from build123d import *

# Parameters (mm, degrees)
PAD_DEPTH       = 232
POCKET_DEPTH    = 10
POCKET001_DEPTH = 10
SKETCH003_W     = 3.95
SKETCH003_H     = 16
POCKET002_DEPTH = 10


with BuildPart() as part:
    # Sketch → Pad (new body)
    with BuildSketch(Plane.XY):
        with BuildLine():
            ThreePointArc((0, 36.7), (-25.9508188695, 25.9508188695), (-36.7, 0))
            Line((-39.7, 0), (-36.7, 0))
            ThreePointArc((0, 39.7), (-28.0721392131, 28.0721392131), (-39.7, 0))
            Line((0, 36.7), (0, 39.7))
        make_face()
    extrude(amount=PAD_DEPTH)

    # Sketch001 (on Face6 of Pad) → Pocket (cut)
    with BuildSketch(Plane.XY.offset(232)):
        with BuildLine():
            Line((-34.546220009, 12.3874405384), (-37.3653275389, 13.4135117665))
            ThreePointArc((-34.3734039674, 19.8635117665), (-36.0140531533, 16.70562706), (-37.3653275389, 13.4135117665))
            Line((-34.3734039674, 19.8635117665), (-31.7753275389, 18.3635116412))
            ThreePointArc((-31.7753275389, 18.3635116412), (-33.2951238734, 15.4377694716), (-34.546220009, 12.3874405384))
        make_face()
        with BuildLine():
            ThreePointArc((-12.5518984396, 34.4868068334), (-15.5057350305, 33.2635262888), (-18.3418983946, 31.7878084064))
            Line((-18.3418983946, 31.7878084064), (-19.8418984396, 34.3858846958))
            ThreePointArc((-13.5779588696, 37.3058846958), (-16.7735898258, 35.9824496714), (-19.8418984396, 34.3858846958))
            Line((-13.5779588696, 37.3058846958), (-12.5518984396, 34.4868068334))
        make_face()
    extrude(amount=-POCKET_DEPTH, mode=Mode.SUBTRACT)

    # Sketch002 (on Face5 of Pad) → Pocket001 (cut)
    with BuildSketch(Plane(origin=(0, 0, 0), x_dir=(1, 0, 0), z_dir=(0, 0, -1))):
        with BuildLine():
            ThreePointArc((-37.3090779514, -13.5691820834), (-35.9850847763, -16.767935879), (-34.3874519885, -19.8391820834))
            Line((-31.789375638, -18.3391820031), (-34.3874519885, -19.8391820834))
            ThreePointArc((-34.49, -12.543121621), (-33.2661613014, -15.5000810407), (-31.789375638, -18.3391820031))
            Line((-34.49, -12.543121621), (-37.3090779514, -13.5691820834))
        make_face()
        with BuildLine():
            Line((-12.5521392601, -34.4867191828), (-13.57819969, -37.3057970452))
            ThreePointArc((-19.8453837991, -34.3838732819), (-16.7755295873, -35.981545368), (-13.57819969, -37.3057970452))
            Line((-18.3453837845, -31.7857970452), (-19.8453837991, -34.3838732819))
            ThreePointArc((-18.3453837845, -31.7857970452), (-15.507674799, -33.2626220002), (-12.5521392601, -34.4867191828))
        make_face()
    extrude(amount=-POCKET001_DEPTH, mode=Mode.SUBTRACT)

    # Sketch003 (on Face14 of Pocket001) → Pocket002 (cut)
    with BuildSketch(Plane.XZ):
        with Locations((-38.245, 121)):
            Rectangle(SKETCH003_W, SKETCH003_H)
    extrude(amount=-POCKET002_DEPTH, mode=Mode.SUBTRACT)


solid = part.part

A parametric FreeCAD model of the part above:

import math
import FreeCAD as App
import Part
import Sketcher
Q = App.Units.Quantity


def add_polygon(sketch, points):
    """Adds a closed chain of lines whose ends are joined by coincident constraints."""
    first, n = sketch.GeometryCount, len(points)
    for a, b in zip(points, points[1:] + points[:1]):
        sketch.addGeometry(Part.LineSegment(App.Vector(*a, 0), App.Vector(*b, 0)), False)
    for i in range(n):
        sketch.addConstraint(Sketcher.Constraint("Coincident", first + i, 2, first + (i + 1) % n, 1))

doc = App.newDocument("Part")
body = doc.addObject("PartDesign::Body", "Body")

sketch1 = body.newObject("Sketcher::SketchObject", "Sketch")
sketch1.AttachmentSupport = (doc.getObject("XY_Plane"), [""])
sketch1.MapMode = "FlatFace"
sketch1.addGeometry(Part.ArcOfCircle(Part.Circle(App.Vector(0, 0, 0), App.Vector(0, 0, 1), 36.7), math.radians(90), math.radians(180)), False)
sketch1.addGeometry(Part.LineSegment(App.Vector(0, 36.7, 0), App.Vector(0, 39.7, 0)), False)
sketch1.addGeometry(Part.ArcOfCircle(Part.Circle(App.Vector(0, 0, 0), App.Vector(0, 0, 1), 39.7), math.radians(90), math.radians(180)), False)
sketch1.addGeometry(Part.LineSegment(App.Vector(-39.7, 0, 0), App.Vector(-36.7, 0, 0)), False)
sketch1.addConstraint(Sketcher.Constraint("Coincident", 0, 1, 1, 1))
sketch1.addConstraint(Sketcher.Constraint("Coincident", 1, 2, 2, 1))
sketch1.addConstraint(Sketcher.Constraint("Coincident", 2, 2, 3, 1))
sketch1.addConstraint(Sketcher.Constraint("Coincident", 3, 2, 0, 2))
sketch1.addConstraint(Sketcher.Constraint("Vertical", 1))
sketch1.addConstraint(Sketcher.Constraint("Horizontal", 3))
sketch1.addConstraint(Sketcher.Constraint("Coincident", 0, 3, -1, 1))
sketch1.addConstraint(Sketcher.Constraint("Coincident", 2, 3, -1, 1))
sketch1.addConstraint(Sketcher.Constraint("PointOnObject", 0, 1, -2))
sketch1.addConstraint(Sketcher.Constraint("PointOnObject", 2, 2, -1))
sketch1.addConstraint(Sketcher.Constraint("Radius", 0, Q("36.7 mm")))
sketch1.addConstraint(Sketcher.Constraint("Radius", 2, Q("39.7 mm")))
pad1 = body.newObject("PartDesign::Pad", "Pad")
pad1.Profile = sketch1
pad1.Length = 232

sketch2 = body.newObject("Sketcher::SketchObject", "Sketch001")
sketch2.AttachmentSupport = (doc.getObject("XY_Plane"), [""])
sketch2.MapMode = "FlatFace"
sketch2.AttachmentOffset = App.Placement(App.Vector(0, 0, 232), App.Rotation())
sketch2.addGeometry(Part.LineSegment(App.Vector(-37.4, 13.4, 0), App.Vector(-34.5, 12.4, 0)), False)
sketch2.addGeometry(Part.ArcOfCircle(Part.Circle(App.Vector(0, 0, 0), App.Vector(0, 0, 1), 36.7), math.radians(149.98), math.radians(160.27)), False)
sketch2.addGeometry(Part.LineSegment(App.Vector(-31.8, 18.4, 0), App.Vector(-34.4, 19.9, 0)), False)
sketch2.addGeometry(Part.ArcOfCircle(Part.Circle(App.Vector(0, 0, 0), App.Vector(0, 0, 1), 39.7), math.radians(149.98), math.radians(160.25)), False)
sketch2.addGeometry(Part.ArcOfCircle(Part.Circle(App.Vector(0, 0, 0), App.Vector(0, 0, 1), 36.7), math.radians(110), math.radians(119.99)), False)
sketch2.addGeometry(Part.LineSegment(App.Vector(-12.6, 34.5, 0), App.Vector(-13.6, 37.3, 0)), False)
sketch2.addGeometry(Part.ArcOfCircle(Part.Circle(App.Vector(0, 0, 0), App.Vector(0, 0, 1), 39.7), math.radians(110), math.radians(119.99)), False)
sketch2.addGeometry(Part.LineSegment(App.Vector(-19.8, 34.4, 0), App.Vector(-18.3, 31.8, 0)), False)
sketch2.addConstraint(Sketcher.Constraint("Coincident", 0, 2, 1, 2))
sketch2.addConstraint(Sketcher.Constraint("Coincident", 1, 1, 2, 1))
sketch2.addConstraint(Sketcher.Constraint("Coincident", 2, 2, 3, 1))
sketch2.addConstraint(Sketcher.Constraint("Coincident", 3, 2, 0, 1))
sketch2.addConstraint(Sketcher.Constraint("Coincident", 4, 1, 5, 1))
sketch2.addConstraint(Sketcher.Constraint("Coincident", 5, 2, 6, 1))
sketch2.addConstraint(Sketcher.Constraint("Coincident", 6, 2, 7, 1))
sketch2.addConstraint(Sketcher.Constraint("Coincident", 7, 2, 4, 2))
sketch2.addConstraint(Sketcher.Constraint("Coincident", 1, 3, -1, 1))
sketch2.addConstraint(Sketcher.Constraint("Coincident", 3, 3, -1, 1))
sketch2.addConstraint(Sketcher.Constraint("Coincident", 4, 3, -1, 1))
sketch2.addConstraint(Sketcher.Constraint("Coincident", 6, 3, -1, 1))
sketch2.addConstraint(Sketcher.Constraint("Equal", 1, 4))
sketch2.addConstraint(Sketcher.Constraint("Equal", 3, 6))
sketch2.addConstraint(Sketcher.Constraint("Radius", 1, Q("36.7 mm")))
sketch2.addConstraint(Sketcher.Constraint("Radius", 3, Q("39.7 mm")))
sketch2.addConstraint(Sketcher.Constraint("Angle", 0, Q("-20 deg")))
sketch2.addConstraint(Sketcher.Constraint("Angle", 2, Q("150 deg")))
sketch2.addConstraint(Sketcher.Constraint("Angle", 5, Q("110 deg")))
sketch2.addConstraint(Sketcher.Constraint("Angle", 7, Q("-60 deg")))
sketch2.addConstraint(Sketcher.Constraint("DistanceY", 3, 2, 2, 2, Q("6.45 mm")))
sketch2.addConstraint(Sketcher.Constraint("DistanceX", 3, 2, 1, 1, Q("5.59 mm")))
sketch2.addConstraint(Sketcher.Constraint("DistanceY", 6, 2, 5, 2, Q("2.92 mm")))
sketch2.addConstraint(Sketcher.Constraint("DistanceX", 6, 2, 4, 1, Q("7.29 mm")))
pocket1 = body.newObject("PartDesign::Pocket", "Pocket")
pocket1.Profile = sketch2
pocket1.Length = 10

sketch3 = body.newObject("Sketcher::SketchObject", "Sketch002")
sketch3.AttachmentSupport = (doc.getObject("XY_Plane"), [""])
sketch3.MapMode = "FlatFace"
sketch3.addGeometry(Part.ArcOfCircle(Part.Circle(App.Vector(0, 0, 0), App.Vector(0, 0, 1), 39.7), math.radians(150.02), math.radians(160.01)), False)
sketch3.addGeometry(Part.LineSegment(App.Vector(-34.4, 19.8, 0), App.Vector(-31.8, 18.3, 0)), False)
sketch3.addGeometry(Part.ArcOfCircle(Part.Circle(App.Vector(0, 0, 0), App.Vector(0, 0, 1), 36.7), math.radians(150.02), math.radians(160.01)), False)
sketch3.addGeometry(Part.LineSegment(App.Vector(-34.5, 12.5, 0), App.Vector(-37.3, 13.6, 0)), False)
sketch3.addGeometry(Part.LineSegment(App.Vector(-13.6, 37.3, 0), App.Vector(-12.6, 34.5, 0)), False)
sketch3.addGeometry(Part.ArcOfCircle(Part.Circle(App.Vector(0, 0, 0), App.Vector(0, 0, 1), 36.7), math.radians(110), math.radians(119.99)), False)
sketch3.addGeometry(Part.LineSegment(App.Vector(-18.3, 31.8, 0), App.Vector(-19.8, 34.4, 0)), False)
sketch3.addGeometry(Part.ArcOfCircle(Part.Circle(App.Vector(0, 0, 0), App.Vector(0, 0, 1), 39.7), math.radians(110), math.radians(119.99)), False)
sketch3.addConstraint(Sketcher.Constraint("Coincident", 0, 1, 1, 1))
sketch3.addConstraint(Sketcher.Constraint("Coincident", 1, 2, 2, 1))
sketch3.addConstraint(Sketcher.Constraint("Coincident", 2, 2, 3, 1))
sketch3.addConstraint(Sketcher.Constraint("Coincident", 3, 2, 0, 2))
sketch3.addConstraint(Sketcher.Constraint("Coincident", 4, 2, 5, 1))
sketch3.addConstraint(Sketcher.Constraint("Coincident", 5, 2, 6, 1))
sketch3.addConstraint(Sketcher.Constraint("Coincident", 6, 2, 7, 2))
sketch3.addConstraint(Sketcher.Constraint("Coincident", 7, 1, 4, 1))
sketch3.addConstraint(Sketcher.Constraint("Coincident", 0, 3, -1, 1))
sketch3.addConstraint(Sketcher.Constraint("Coincident", 2, 3, -1, 1))
sketch3.addConstraint(Sketcher.Constraint("Coincident", 5, 3, -1, 1))
sketch3.addConstraint(Sketcher.Constraint("Coincident", 7, 3, -1, 1))
sketch3.addConstraint(Sketcher.Constraint("Equal", 2, 5))
sketch3.addConstraint(Sketcher.Constraint("Equal", 0, 7))
sketch3.addConstraint(Sketcher.Constraint("Radius", 0, Q("39.7 mm")))
sketch3.addConstraint(Sketcher.Constraint("Radius", 2, Q("36.7 mm")))
sketch3.addConstraint(Sketcher.Constraint("Angle", 1, Q("-30 deg")))
sketch3.addConstraint(Sketcher.Constraint("Angle", 3, Q("160 deg")))
sketch3.addConstraint(Sketcher.Constraint("Angle", 4, Q("-70 deg")))
sketch3.addConstraint(Sketcher.Constraint("Angle", 6, Q("120 deg")))
sketch3.addConstraint(Sketcher.Constraint("DistanceX", 2, 2, -1, 1, Q("34.49 mm")))
sketch3.addConstraint(Sketcher.Constraint("DistanceY", 3, 2, 0, 1, Q("6.27 mm")))
sketch3.addConstraint(Sketcher.Constraint("DistanceY", 5, 2, 7, 1, Q("5.52 mm")))
sketch3.addConstraint(Sketcher.Constraint("DistanceX", 7, 1, -1, 1, Q("13.5782 mm")))
pocket2 = body.newObject("PartDesign::Pocket", "Pocket001")
pocket2.Profile = sketch3
pocket2.Length = 10
pocket2.Reversed = True

sketch4 = body.newObject("Sketcher::SketchObject", "Sketch003")
sketch4.AttachmentSupport = (doc.getObject("XZ_Plane"), [""])
sketch4.MapMode = "FlatFace"
add_polygon(sketch4, [(-40.2, 129), (-40.2, 113), (-36.3, 113), (-36.3, 129)])
sketch4.addConstraint(Sketcher.Constraint("Vertical", 0))
sketch4.addConstraint(Sketcher.Constraint("Horizontal", 1))
sketch4.addConstraint(Sketcher.Constraint("Vertical", 2))
sketch4.addConstraint(Sketcher.Constraint("Horizontal", 3))
sketch4.addConstraint(Sketcher.Constraint("DistanceY", 0, 2, 0, 1, Q("16 mm")))
sketch4.addConstraint(Sketcher.Constraint("DistanceY", -1, 1, 0, 2, Q("113 mm")))
sketch4.addConstraint(Sketcher.Constraint("DistanceX", 1, 1, 1, 2, Q("3.95 mm")))
sketch4.addConstraint(Sketcher.Constraint("DistanceX", 0, 2, -1, 1, Q("40.22 mm")))
pocket3 = body.newObject("PartDesign::Pocket", "Pocket002")
pocket3.Profile = sketch4
pocket3.Length = 10

doc.recompute()
